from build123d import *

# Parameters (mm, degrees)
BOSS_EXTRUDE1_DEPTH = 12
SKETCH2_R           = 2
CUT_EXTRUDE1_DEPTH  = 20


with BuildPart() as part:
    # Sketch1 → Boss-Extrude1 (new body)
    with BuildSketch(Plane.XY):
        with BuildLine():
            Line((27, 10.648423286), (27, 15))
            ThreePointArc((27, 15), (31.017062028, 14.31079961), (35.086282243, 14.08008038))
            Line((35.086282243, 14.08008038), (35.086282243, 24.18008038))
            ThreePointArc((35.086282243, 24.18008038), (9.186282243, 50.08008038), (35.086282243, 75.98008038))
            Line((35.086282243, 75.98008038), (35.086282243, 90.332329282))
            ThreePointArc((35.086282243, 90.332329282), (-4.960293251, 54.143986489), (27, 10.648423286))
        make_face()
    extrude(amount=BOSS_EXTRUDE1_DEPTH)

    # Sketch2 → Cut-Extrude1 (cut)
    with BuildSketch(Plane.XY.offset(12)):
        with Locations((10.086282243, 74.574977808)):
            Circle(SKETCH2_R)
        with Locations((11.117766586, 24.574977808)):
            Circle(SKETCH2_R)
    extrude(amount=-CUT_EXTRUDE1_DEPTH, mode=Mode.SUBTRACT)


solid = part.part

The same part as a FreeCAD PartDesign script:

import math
import FreeCAD as App
import Part
import Sketcher
from FreeCAD import Vector

doc = App.newDocument("Part")
params = doc.addObject("Spreadsheet::Sheet", "Params")
for row, (alias, value) in enumerate([
    ("sketch1_radius", "36 mm"),
    ("sketch1_radius2", "25.9 mm"),
    ("pad1_length", "12 mm"),
    ("sketch2_diameter", "4 mm"),
    ("pocket1_length", "20 mm"),
], start=1):
    params.set(f"A{row}", alias)
    params.set(f"B{row}", "=" + value)
    params.setAlias(f"B{row}", alias)

body = doc.addObject("PartDesign::Body", "Body")

# Sketch on XY plane
sketch1 = doc.addObject("Sketcher::SketchObject", "Sketch")
body.addObject(sketch1)
sketch1.AttachmentSupport = (doc.XY_Plane, [""])
sketch1.MapMode = "FlatFace"
sketch1.addGeometry([
    Part.LineSegment(Vector(27, 10.6, 0), Vector(27, 15, 0)),  # 0
    Part.ArcOfCircle(Part.Circle(Vector(35.1, 50.1, 0), Vector(0, 0, 1), 36), math.radians(-102.98), math.radians(-90)),  # 1
    Part.LineSegment(Vector(35.1, 14.1, 0), Vector(35.1, 24.2, 0)),  # 2
    Part.ArcOfCircle(Part.Circle(Vector(35.1, 50.1, 0), Vector(0, 0, 1), 25.9), math.radians(90), math.radians(270)),  # 3
    Part.LineSegment(Vector(35.1, 76, 0), Vector(35.1, 90.3, 0)),  # 4
    Part.ArcOfCircle(Part.Circle(Vector(35.1, 50.1, 0), Vector(0, 0, 1), 40.3), math.radians(90), math.radians(258)),  # 5
], False)
sketch1.addConstraint([
    Sketcher.Constraint("Coincident", 0, 2, 1, 1),
    Sketcher.Constraint("Coincident", 1, 2, 2, 1),
    Sketcher.Constraint("Coincident", 2, 2, 3, 2),
    Sketcher.Constraint("Coincident", 3, 1, 4, 1),
    Sketcher.Constraint("Coincident", 4, 2, 5, 1),
    Sketcher.Constraint("Coincident", 5, 2, 0, 1),
    Sketcher.Constraint("Vertical", 0),
    Sketcher.Constraint("Vertical", 2),
    Sketcher.Constraint("Vertical", 4),
    Sketcher.Constraint("Coincident", 3, 3, 1, 3),
    Sketcher.Constraint("Coincident", 5, 3, 1, 3),
    Sketcher.Constraint("Vertical", 5, 3, 1, 2),
    Sketcher.Constraint("Vertical", 2, 2, 3, 1),
    Sketcher.Constraint("Radius", 1, 36.0),
    Sketcher.Constraint("Radius", 3, 25.9),
    Sketcher.Constraint("DistanceX", -1, 1, 0, 2, 27.0),
    Sketcher.Constraint("DistanceY", -1, 1, 0, 2, 15.0),
    Sketcher.Constraint("Radius", 5, 40.252249),
    Sketcher.Constraint("DistanceY", 0, 1, 0, 2, 4.351577),
])
sketch1.setExpression("Constraints[13]", "Params.sketch1_radius")
sketch1.setExpression("Constraints[14]", "Params.sketch1_radius2")
pad1 = doc.addObject("PartDesign::Pad", "Pad")
body.addObject(pad1)
pad1.Profile = sketch1
pad1.setExpression("Length", "Params.pad1_length")

# Sketch on XY plane
sketch2 = doc.addObject("Sketcher::SketchObject", "Sketch001")
body.addObject(sketch2)
sketch2.AttachmentSupport = (doc.XY_Plane, [""])
sketch2.MapMode = "FlatFace"
sketch2.AttachmentOffset = App.Placement(Vector(0, 0, 12), App.Rotation())
sketch2.addGeometry([
    Part.Circle(Vector(10.1, 74.6, 0), Vector(0, 0, 1), 2),
    Part.Circle(Vector(11.1, 24.6, 0), Vector(0, 0, 1), 2),
], False)
sketch2.addConstraint([
    Sketcher.Constraint("Equal", 0, 1),
    Sketcher.Constraint("Diameter", 0, 4.0),
    Sketcher.Constraint("DistanceY", 1, 3, 0, 3, 50.0),
    Sketcher.Constraint("DistanceX", -1, 1, 0, 3, 10.086282),
    Sketcher.Constraint("DistanceY", -1, 1, 0, 3, 74.574978),
    Sketcher.Constraint("DistanceX", -1, 1, 1, 3, 11.117767),
])
sketch2.setExpression("Constraints[1]", "Params.sketch2_diameter")
pocket1 = doc.addObject("PartDesign::Pocket", "Pocket")
body.addObject(pocket1)
pocket1.Profile = sketch2
pocket1.setExpression("Length", "Params.pocket1_length")

doc.recompute()
